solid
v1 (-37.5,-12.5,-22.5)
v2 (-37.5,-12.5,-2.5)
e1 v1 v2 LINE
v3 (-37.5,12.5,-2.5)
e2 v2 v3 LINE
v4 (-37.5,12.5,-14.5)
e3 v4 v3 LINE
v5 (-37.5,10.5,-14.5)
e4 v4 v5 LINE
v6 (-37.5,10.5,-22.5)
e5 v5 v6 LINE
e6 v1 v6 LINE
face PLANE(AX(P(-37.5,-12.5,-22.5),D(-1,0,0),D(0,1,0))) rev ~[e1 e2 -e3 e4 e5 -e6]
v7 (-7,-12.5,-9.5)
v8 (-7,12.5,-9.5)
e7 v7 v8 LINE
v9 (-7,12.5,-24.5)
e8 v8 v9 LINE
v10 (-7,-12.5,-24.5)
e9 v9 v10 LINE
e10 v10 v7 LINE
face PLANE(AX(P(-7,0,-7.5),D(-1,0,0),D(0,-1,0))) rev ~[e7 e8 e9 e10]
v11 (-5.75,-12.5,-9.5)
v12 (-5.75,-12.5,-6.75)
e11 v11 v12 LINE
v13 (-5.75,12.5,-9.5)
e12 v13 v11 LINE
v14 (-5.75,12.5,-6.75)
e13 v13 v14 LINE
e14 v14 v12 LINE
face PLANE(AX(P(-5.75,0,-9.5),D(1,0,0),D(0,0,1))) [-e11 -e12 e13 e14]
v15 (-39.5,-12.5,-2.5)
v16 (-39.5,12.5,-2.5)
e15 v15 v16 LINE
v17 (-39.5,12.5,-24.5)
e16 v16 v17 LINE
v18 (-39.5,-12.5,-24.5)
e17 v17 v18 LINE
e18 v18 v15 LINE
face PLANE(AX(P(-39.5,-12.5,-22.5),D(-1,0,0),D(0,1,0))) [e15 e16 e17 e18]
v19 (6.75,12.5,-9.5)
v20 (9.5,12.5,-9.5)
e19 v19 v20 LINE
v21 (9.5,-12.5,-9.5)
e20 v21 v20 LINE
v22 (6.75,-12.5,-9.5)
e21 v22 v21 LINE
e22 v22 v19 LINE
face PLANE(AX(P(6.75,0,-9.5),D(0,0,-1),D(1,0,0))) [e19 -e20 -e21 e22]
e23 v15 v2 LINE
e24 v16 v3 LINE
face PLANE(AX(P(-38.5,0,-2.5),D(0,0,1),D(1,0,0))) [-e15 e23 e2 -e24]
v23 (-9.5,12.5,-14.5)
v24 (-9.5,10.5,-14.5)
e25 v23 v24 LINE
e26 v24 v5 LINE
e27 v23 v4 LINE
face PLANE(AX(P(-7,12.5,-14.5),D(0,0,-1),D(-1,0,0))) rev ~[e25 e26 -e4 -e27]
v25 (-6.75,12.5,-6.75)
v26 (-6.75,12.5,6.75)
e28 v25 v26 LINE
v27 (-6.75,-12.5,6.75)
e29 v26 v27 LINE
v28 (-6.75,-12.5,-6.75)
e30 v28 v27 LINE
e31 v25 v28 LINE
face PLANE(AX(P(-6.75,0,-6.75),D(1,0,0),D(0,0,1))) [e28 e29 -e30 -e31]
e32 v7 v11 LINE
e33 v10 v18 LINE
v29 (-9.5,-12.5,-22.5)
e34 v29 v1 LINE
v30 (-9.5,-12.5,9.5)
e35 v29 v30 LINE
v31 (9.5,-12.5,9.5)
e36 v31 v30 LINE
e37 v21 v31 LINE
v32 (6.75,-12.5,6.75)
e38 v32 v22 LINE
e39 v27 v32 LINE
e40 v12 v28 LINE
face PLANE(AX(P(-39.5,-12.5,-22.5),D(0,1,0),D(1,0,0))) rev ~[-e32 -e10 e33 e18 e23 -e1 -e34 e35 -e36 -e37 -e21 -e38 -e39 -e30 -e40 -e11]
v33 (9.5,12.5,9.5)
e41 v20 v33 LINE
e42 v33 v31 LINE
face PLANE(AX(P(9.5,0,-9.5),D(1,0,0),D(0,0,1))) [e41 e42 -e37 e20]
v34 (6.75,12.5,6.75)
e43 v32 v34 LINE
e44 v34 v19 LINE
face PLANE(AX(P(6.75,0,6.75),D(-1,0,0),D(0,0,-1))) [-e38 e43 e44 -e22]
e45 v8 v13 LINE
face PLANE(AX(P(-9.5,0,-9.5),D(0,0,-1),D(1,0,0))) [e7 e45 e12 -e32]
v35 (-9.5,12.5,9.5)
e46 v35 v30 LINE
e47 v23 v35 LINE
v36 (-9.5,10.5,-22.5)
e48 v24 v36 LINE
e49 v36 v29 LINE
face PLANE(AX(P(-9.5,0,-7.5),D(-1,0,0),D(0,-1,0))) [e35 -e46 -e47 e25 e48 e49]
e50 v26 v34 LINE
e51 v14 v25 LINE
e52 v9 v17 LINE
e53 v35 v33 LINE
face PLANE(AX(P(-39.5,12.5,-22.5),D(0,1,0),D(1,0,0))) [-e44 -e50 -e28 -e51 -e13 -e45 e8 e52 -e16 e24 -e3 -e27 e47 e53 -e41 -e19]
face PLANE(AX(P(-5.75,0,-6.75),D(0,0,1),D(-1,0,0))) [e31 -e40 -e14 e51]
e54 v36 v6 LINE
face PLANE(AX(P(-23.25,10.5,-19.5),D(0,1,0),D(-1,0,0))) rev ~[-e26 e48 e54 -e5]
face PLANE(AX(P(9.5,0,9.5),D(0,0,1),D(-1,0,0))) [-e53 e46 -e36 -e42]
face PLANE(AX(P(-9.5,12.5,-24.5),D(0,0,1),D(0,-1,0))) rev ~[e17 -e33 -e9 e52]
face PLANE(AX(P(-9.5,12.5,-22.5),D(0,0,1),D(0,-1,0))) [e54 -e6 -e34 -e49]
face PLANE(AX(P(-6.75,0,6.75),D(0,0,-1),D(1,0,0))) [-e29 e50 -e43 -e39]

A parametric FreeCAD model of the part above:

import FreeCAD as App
import Part
import Sketcher

V = App.Vector


def add_polygon(sketch, points):
    """Adds a closed chain of lines whose ends are joined by coincident constraints."""
    first, n = sketch.GeometryCount, len(points)
    for a, b in zip(points, points[1:] + points[:1]):
        sketch.addGeometry(Part.LineSegment(App.Vector(*a, 0), App.Vector(*b, 0)), False)
    for i in range(n):
        sketch.addConstraint(Sketcher.Constraint("Coincident", first + i, 2, first + (i + 1) % n, 1))

doc = App.newDocument("Part")
params = doc.addObject("Spreadsheet::Sheet", "Params")
for row, (alias, value) in enumerate([
    ("sketch1_width", "19 mm"),
    ("sketch1_width2", "1 mm"),
    ("sketch1_width3", "13.5 mm"),
    ("pad1_length", "25 mm"),
    ("sketch2_width", "25 mm"),
    ("sketch2_height", "34 mm"),
    ("pad2_length", "2.5 mm"),
    ("sketch3_width", "25 mm"),
    ("sketch3_height", "2 mm"),
    ("pad3_length", "30 mm"),
    ("sketch4_width", "2 mm"),
    ("sketch4_height", "25 mm"),
    ("pad4_length", "20 mm"),
    ("sketch5_height", "10 mm"),
    ("sketch5_width", "32.5 mm"),
    ("pad5_length", "2 mm"),
], start=1):
    params.set(f"A{row}", alias)
    params.set(f"B{row}", "=" + value)
    params.setAlias(f"B{row}", alias)

body = doc.addObject("PartDesign::Body", "Body")

# Sketch on XZ plane
sketch1 = doc.addObject("Sketcher::SketchObject", "Sketch")
body.addObject(sketch1)
sketch1.AttachmentSupport = (doc.XZ_Plane, [""])
sketch1.MapMode = "FlatFace"
add_polygon(sketch1, [(9.5, -9.5), (9.5, 9.5), (-9.5, 9.5), (-9.5, -9.5), (-5.8, -9.5), (-5.8, -6.8), (-6.8, -6.8), (-6.8, 6.8), (6.8, 6.8), (6.8, -9.5)])  # lines 0-9
sketch1.addConstraint(Sketcher.Constraint("Vertical", 0))
sketch1.addConstraint(Sketcher.Constraint("Horizontal", 1))
sketch1.addConstraint(Sketcher.Constraint("Vertical", 2))
sketch1.addConstraint(Sketcher.Constraint("Horizontal", 3))
sketch1.addConstraint(Sketcher.Constraint("Vertical", 4))
sketch1.addConstraint(Sketcher.Constraint("Horizontal", 5))
sketch1.addConstraint(Sketcher.Constraint("Vertical", 6))
sketch1.addConstraint(Sketcher.Constraint("Horizontal", 7))
sketch1.addConstraint(Sketcher.Constraint("Vertical", 8))
sketch1.addConstraint(Sketcher.Constraint("Horizontal", 9))
sketch1.addConstraint(Sketcher.Constraint("Symmetric", 0, 2, 2, 2, -1, 1))
sketch1.addConstraint(Sketcher.Constraint("Symmetric", 5, 2, 7, 2, -1, 1))
sketch1.addConstraint(Sketcher.Constraint("Horizontal", 3, 2, 8, 2))
sketch1.addConstraint(Sketcher.Constraint("Equal", 1, 0))
sketch1.addConstraint(Sketcher.Constraint("Equal", 9, 4))
sketch1.addConstraint(Sketcher.Constraint("DistanceX", 1, 2, 1, 1, 19.0))
sketch1.addConstraint(Sketcher.Constraint("DistanceX", 5, 2, 5, 1, 1.0))
sketch1.addConstraint(Sketcher.Constraint("DistanceX", 7, 1, 7, 2, 13.5))
sketch1.setExpression("Constraints[25]", "Params.sketch1_width")
sketch1.setExpression("Constraints[26]", "Params.sketch1_width2")
sketch1.setExpression("Constraints[27]", "Params.sketch1_width3")
pad1 = doc.addObject("PartDesign::Pad", "Pad")
body.addObject(pad1)
pad1.Profile = sketch1
pad1.setExpression("Length", "Params.pad1_length")
pad1.Midplane = True

# Sketch on YZ plane
sketch2 = doc.addObject("Sketcher::SketchObject", "Sketch001")
body.addObject(sketch2)
sketch2.AttachmentSupport = (doc.YZ_Plane, [""])
sketch2.MapMode = "FlatFace"
sketch2.AttachmentOffset = App.Placement(V(0, 0, -9.5), App.Rotation())
add_polygon(sketch2, [(12, 10), (12, -24), (-12, -24), (-12, 10)])  # lines 0-3
sketch2.addConstraint(Sketcher.Constraint("Vertical", 0))
sketch2.addConstraint(Sketcher.Constraint("Horizontal", 1))
sketch2.addConstraint(Sketcher.Constraint("Vertical", 2))
sketch2.addConstraint(Sketcher.Constraint("Horizontal", 3))
sketch2.addConstraint(Sketcher.Constraint("DistanceX", 1, 2, 1, 1, 25.0))
sketch2.addConstraint(Sketcher.Constraint("DistanceY", 0, 2, 0, 1, 34.0))
sketch2.addConstraint(Sketcher.Constraint("DistanceX", -1, 1, 0, 2, 12.5))
sketch2.addConstraint(Sketcher.Constraint("DistanceY", 0, 2, -1, 1, 24.5))
sketch2.setExpression("Constraints[8]", "Params.sketch2_width")
sketch2.setExpression("Constraints[9]", "Params.sketch2_height")
pad2 = doc.addObject("PartDesign::Pad", "Pad001")
body.addObject(pad2)
pad2.Profile = sketch2
pad2.setExpression("Length", "Params.pad2_length")

# Sketch on YZ plane
sketch3 = doc.addObject("Sketcher::SketchObject", "Sketch002")
body.addObject(sketch3)
sketch3.AttachmentSupport = (doc.YZ_Plane, [""])
sketch3.MapMode = "FlatFace"
sketch3.AttachmentOffset = App.Placement(V(0, 0, -9.5), App.Rotation())
add_polygon(sketch3, [(12.5, -22.5), (12.5, -24.5), (-12.5, -24.5), (-12.5, -22.5)])  # lines 0-3
sketch3.addConstraint(Sketcher.Constraint("Vertical", 0))
sketch3.addConstraint(Sketcher.Constraint("Horizontal", 1))
sketch3.addConstraint(Sketcher.Constraint("Vertical", 2))
sketch3.addConstraint(Sketcher.Constraint("Horizontal", 3))
sketch3.addConstraint(Sketcher.Constraint("DistanceX", 1, 2, 1, 1, 25.0))
sketch3.addConstraint(Sketcher.Constraint("DistanceY", 0, 2, 0, 1, 2.0))
sketch3.addConstraint(Sketcher.Constraint("DistanceX", -1, 1, 0, 2, 12.5))
sketch3.addConstraint(Sketcher.Constraint("DistanceY", 0, 2, -1, 1, 24.5))
sketch3.setExpression("Constraints[8]", "Params.sketch3_width")
sketch3.setExpression("Constraints[9]", "Params.sketch3_height")
pad3 = doc.addObject("PartDesign::Pad", "Pad002")
body.addObject(pad3)
pad3.Profile = sketch3
pad3.setExpression("Length", "Params.pad3_length")
pad3.Reversed = True

# Sketch on XY plane
sketch4 = doc.addObject("Sketcher::SketchObject", "Sketch003")
body.addObject(sketch4)
sketch4.AttachmentSupport = (doc.XY_Plane, [""])
sketch4.MapMode = "FlatFace"
sketch4.AttachmentOffset = App.Placement(V(0, 0, -22.5), App.Rotation())
add_polygon(sketch4, [(-39.5, 12.5), (-39.5, -12.5), (-37.5, -12.5), (-37.5, 12.5)])  # lines 0-3
sketch4.addConstraint(Sketcher.Constraint("Vertical", 0))
sketch4.addConstraint(Sketcher.Constraint("Horizontal", 1))
sketch4.addConstraint(Sketcher.Constraint("Vertical", 2))
sketch4.addConstraint(Sketcher.Constraint("Horizontal", 3))
sketch4.addConstraint(Sketcher.Constraint("DistanceX", 1, 1, 1, 2, 2.0))
sketch4.addConstraint(Sketcher.Constraint("DistanceY", 0, 2, 0, 1, 25.0))
sketch4.addConstraint(Sketcher.Constraint("DistanceX", 0, 2, -1, 1, 39.5))
sketch4.addConstraint(Sketcher.Constraint("DistanceY", 0, 2, -1, 1, 12.5))
sketch4.setExpression("Constraints[8]", "Params.sketch4_width")
sketch4.setExpression("Constraints[9]", "Params.sketch4_height")
pad4 = doc.addObject("PartDesign::Pad", "Pad003")
body.addObject(pad4)
pad4.Profile = sketch4
pad4.setExpression("Length", "Params.pad4_length")

# Sketch on XZ plane
sketch5 = doc.addObject("Sketcher::SketchObject", "Sketch004")
body.addObject(sketch5)
sketch5.AttachmentSupport = (doc.XZ_Plane, [""])
sketch5.MapMode = "FlatFace"
sketch5.AttachmentOffset = App.Placement(V(0, 0, -12.5), App.Rotation())
add_polygon(sketch5, [(-7, -14), (-7, -24), (-40, -24), (-40, -14)])  # lines 0-3
sketch5.addConstraint(Sketcher.Constraint("Vertical", 0))
sketch5.addConstraint(Sketcher.Constraint("Horizontal", 1))
sketch5.addConstraint(Sketcher.Constraint("Vertical", 2))
sketch5.addConstraint(Sketcher.Constraint("Horizontal", 3))
sketch5.addConstraint(Sketcher.Constraint("DistanceY", 0, 2, 0, 1, 10.0))
sketch5.addConstraint(Sketcher.Constraint("DistanceX", 1, 2, 1, 1, 32.5))
sketch5.addConstraint(Sketcher.Constraint("DistanceX", 0, 2, -1, 1, 7.0))
sketch5.addConstraint(Sketcher.Constraint("DistanceY", 0, 2, -1, 1, 24.5))
sketch5.setExpression("Constraints[8]", "Params.sketch5_height")
sketch5.setExpression("Constraints[9]", "Params.sketch5_width")
pad5 = doc.addObject("PartDesign::Pad", "Pad004")
body.addObject(pad5)
pad5.Profile = sketch5
pad5.setExpression("Length", "Params.pad5_length")

doc.recompute()
